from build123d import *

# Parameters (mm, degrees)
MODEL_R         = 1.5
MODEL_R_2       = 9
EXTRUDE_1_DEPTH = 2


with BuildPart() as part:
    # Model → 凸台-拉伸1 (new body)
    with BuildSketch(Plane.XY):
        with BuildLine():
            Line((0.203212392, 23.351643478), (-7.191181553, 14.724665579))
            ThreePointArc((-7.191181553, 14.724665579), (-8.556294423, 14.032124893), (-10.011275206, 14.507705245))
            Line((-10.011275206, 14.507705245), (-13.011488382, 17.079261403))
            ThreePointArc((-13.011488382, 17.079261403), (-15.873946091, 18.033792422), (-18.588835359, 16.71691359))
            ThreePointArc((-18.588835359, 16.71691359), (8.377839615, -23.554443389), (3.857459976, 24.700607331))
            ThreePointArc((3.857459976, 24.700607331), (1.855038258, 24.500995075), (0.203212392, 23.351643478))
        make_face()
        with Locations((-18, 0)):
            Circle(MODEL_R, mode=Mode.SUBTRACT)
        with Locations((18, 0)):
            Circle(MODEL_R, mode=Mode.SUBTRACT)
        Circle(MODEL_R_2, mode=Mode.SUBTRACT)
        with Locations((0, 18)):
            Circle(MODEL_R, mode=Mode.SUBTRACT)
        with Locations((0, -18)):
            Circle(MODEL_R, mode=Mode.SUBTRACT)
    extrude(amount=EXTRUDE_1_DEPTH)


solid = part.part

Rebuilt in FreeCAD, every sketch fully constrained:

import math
import FreeCAD as App
import Part
import Sketcher
Q = App.Units.Quantity

doc = App.newDocument("Part")
params = doc.addObject("Spreadsheet::Sheet", "Params")
for row, (alias, value) in enumerate([
    ("sketch1_diameter", "3 mm"),
    ("sketch1_diameter2", "18 mm"),
    ("sketch1_radius", "2 mm"),
    ("sketch1_radius2", "4 mm"),
    ("sketch1_radius3", "25 mm"),
    ("pad1_length", "2 mm"),
], start=1):
    params.set(f"A{row}", alias)
    params.set(f"B{row}", "=" + value)
    params.setAlias(f"B{row}", alias)

body = doc.addObject("PartDesign::Body", "Body")

sketch1 = body.newObject("Sketcher::SketchObject", "Sketch")
sketch1.AttachmentSupport = (doc.getObject("XY_Plane"), [""])
sketch1.MapMode = "FlatFace"
sketch1.addGeometry(Part.LineSegment(App.Vector(0.2, 23.4, 0), App.Vector(-7.2, 14.7, 0)), False)
sketch1.addGeometry(Part.ArcOfCircle(Part.Circle(App.Vector(-8.7, 16, 0), App.Vector(0, 0, 1), 2), math.radians(-131), math.radians(-41)), False)
sketch1.addGeometry(Part.LineSegment(App.Vector(-10, 14.5, 0), App.Vector(-13, 17.1, 0)), False)
sketch1.addGeometry(Part.ArcOfCircle(Part.Circle(App.Vector(-15.6, 14, 0), App.Vector(0, 0, 1), 4), math.radians(49), math.radians(138)), False)
sketch1.addGeometry(Part.ArcOfCircle(Part.Circle(App.Vector(0, 0, 0), App.Vector(0, 0, 1), 25), math.radians(138), math.radians(441)), False)
sketch1.addGeometry(Part.ArcOfCircle(Part.Circle(App.Vector(3.2, 20.7, 0), App.Vector(0, 0, 1), 4), math.radians(81), math.radians(139)), False)
sketch1.addGeometry(Part.Circle(App.Vector(0, -18, 0), App.Vector(0, 0, 1), 1.5), False)
sketch1.addGeometry(Part.Circle(App.Vector(-18, 0, 0), App.Vector(0, 0, 1), 1.5), False)
sketch1.addGeometry(Part.Circle(App.Vector(0, 0, 0), App.Vector(0, 0, 1), 9), False)
sketch1.addGeometry(Part.Circle(App.Vector(18, 0, 0), App.Vector(0, 0, 1), 1.5), False)
sketch1.addGeometry(Part.Circle(App.Vector(0, 18, 0), App.Vector(0, 0, 1), 1.5), False)
sketch1.addConstraint(Sketcher.Constraint("Tangent", 0, 2, 1, 2))
sketch1.addConstraint(Sketcher.Constraint("Tangent", 1, 1, 2, 1))
sketch1.addConstraint(Sketcher.Constraint("Tangent", 2, 2, 3, 1))
sketch1.addConstraint(Sketcher.Constraint("Tangent", 3, 2, 4, 1))
sketch1.addConstraint(Sketcher.Constraint("Tangent", 4, 2, 5, 1))
sketch1.addConstraint(Sketcher.Constraint("Tangent", 5, 2, 0, 1))
sketch1.addConstraint(Sketcher.Constraint("Coincident", 4, 3, -1, 1))
sketch1.addConstraint(Sketcher.Constraint("Coincident", 8, 3, -1, 1))
sketch1.addConstraint(Sketcher.Constraint("Equal", 3, 5))
sketch1.addConstraint(Sketcher.Constraint("Equal", 6, 7))
sketch1.addConstraint(Sketcher.Constraint("Equal", 7, 9))
sketch1.addConstraint(Sketcher.Constraint("Equal", 9, 10))
sketch1.addConstraint(Sketcher.Constraint("Symmetric", 7, 3, 9, 3, -1, 1))
sketch1.addConstraint(Sketcher.Constraint("Symmetric", 6, 3, 10, 3, -1, 1))
sketch1.addConstraint(Sketcher.Constraint("PointOnObject", 6, 3, -2))
sketch1.addConstraint(Sketcher.Constraint("PointOnObject", 7, 3, -1))
sketch1.addConstraint(Sketcher.Constraint("Perpendicular", 0, 2))
sketch1.addConstraint(Sketcher.Constraint("Diameter", 6, Q("3 mm")))
sketch1.addConstraint(Sketcher.Constraint("Diameter", 8, Q("18 mm")))
sketch1.addConstraint(Sketcher.Constraint("Radius", 1, Q("2 mm")))
sketch1.addConstraint(Sketcher.Constraint("Radius", 3, Q("4 mm")))
sketch1.addConstraint(Sketcher.Constraint("Radius", 4, Q("25 mm")))
sketch1.addConstraint(Sketcher.Constraint("DistanceY", 6, 3, -1, 1, Q("18 mm")))
sketch1.addConstraint(Sketcher.Constraint("DistanceX", 7, 3, -1, 1, Q("18 mm")))
sketch1.addConstraint(Sketcher.Constraint("Distance", 2, Q("3.951478 mm")))
sketch1.addConstraint(Sketcher.Constraint("DistanceX", 1, 3, -1, 1, Q("8.709709 mm")))
sketch1.addConstraint(Sketcher.Constraint("DistanceX", 3, 3, -1, 1, Q("15.614622 mm")))
sketch1.setExpression("Constraints[17]", "Params.sketch1_diameter")
sketch1.setExpression("Constraints[18]", "Params.sketch1_diameter2")
sketch1.setExpression("Constraints[19]", "Params.sketch1_radius")
sketch1.setExpression("Constraints[20]", "Params.sketch1_radius2")
sketch1.setExpression("Constraints[21]", "Params.sketch1_radius3")
pad1 = body.newObject("PartDesign::Pad", "Pad")
pad1.Profile = sketch1
pad1.setExpression("Length", "Params.pad1_length")

doc.recompute()
